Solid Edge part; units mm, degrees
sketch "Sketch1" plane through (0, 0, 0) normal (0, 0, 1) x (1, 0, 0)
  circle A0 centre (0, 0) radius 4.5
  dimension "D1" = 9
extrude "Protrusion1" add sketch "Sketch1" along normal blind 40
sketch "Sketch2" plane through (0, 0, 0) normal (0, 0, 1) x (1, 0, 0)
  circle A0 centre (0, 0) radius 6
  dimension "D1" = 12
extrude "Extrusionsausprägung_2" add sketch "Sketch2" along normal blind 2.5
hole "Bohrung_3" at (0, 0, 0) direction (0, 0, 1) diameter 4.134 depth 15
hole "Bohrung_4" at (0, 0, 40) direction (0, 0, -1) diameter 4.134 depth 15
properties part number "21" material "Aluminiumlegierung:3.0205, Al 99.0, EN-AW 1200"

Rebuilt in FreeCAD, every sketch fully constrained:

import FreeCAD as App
import Part
import Sketcher

doc = App.newDocument("Part")
params = doc.addObject("Spreadsheet::Sheet", "Params")
for row, (alias, value) in enumerate([
    ("sketch1_diameter", "9 mm"),
    ("pad1_length", "40 mm"),
    ("sketch2_diameter", "12 mm"),
    ("pad2_length", "2.5 mm"),
    ("hole_diameter", "4.134 mm"),
    ("hole_depth", "15 mm"),
    ("hole2_diameter", "4.134 mm"),
    ("hole2_depth", "15 mm"),
], start=1):
    params.set(f"A{row}", alias)
    params.set(f"B{row}", "=" + value)
    params.setAlias(f"B{row}", alias)

body = doc.addObject("PartDesign::Body", "Body")

sketch1 = body.newObject("Sketcher::SketchObject", "Sketch")
sketch1.AttachmentSupport = (doc.getObject("XY_Plane"), [""])
sketch1.MapMode = "FlatFace"
sketch1.addGeometry(Part.Circle(App.Vector(0, 0, 0), App.Vector(0, 0, 1), 4.5), False)
sketch1.addConstraint([
    Sketcher.Constraint("Coincident", 0, 3, -1, 1),
    Sketcher.Constraint("Diameter", 0, 9.0),
])
sketch1.setExpression("Constraints[1]", "Params.sketch1_diameter")
pad1 = body.newObject("PartDesign::Pad", "Pad")
pad1.Profile = sketch1
pad1.setExpression("Length", "Params.pad1_length")

sketch2 = body.newObject("Sketcher::SketchObject", "Sketch001")
sketch2.AttachmentSupport = (doc.getObject("XY_Plane"), [""])
sketch2.MapMode = "FlatFace"
sketch2.addGeometry(Part.Circle(App.Vector(0, 0, 0), App.Vector(0, 0, 1), 6), False)
sketch2.addConstraint([
    Sketcher.Constraint("Coincident", 0, 3, -1, 1),
    Sketcher.Constraint("Diameter", 0, 12.0),
])
sketch2.setExpression("Constraints[1]", "Params.sketch2_diameter")
pad2 = body.newObject("PartDesign::Pad", "Pad001")
pad2.Profile = sketch2
pad2.setExpression("Length", "Params.pad2_length")

sketch3 = body.newObject("Sketcher::SketchObject", "Sketch002")
sketch3.AttachmentSupport = (doc.getObject("XY_Plane"), [""])
sketch3.MapMode = "FlatFace"
sketch3.addGeometry(Part.Circle(App.Vector(0, 0, 0), App.Vector(0, 0, 1), 2.1), False)
sketch3.addConstraint([
    Sketcher.Constraint("Coincident", 0, 3, -1, 1),
    Sketcher.Constraint("Diameter", 0, 4.134),
])
doc.recompute()
hole = body.newObject("PartDesign::Hole", "Hole")
hole.Profile = sketch3
hole.ThreadType = "None"
hole.setExpression("Diameter", "Params.hole_diameter")
hole.DepthType = "Dimension"
hole.setExpression("Depth", "Params.hole_depth")
hole.DrillPoint = "Flat"
hole.Reversed = True

sketch4 = body.newObject("Sketcher::SketchObject", "Sketch003")
sketch4.AttachmentSupport = (doc.getObject("XY_Plane"), [""])
sketch4.MapMode = "FlatFace"
sketch4.AttachmentOffset = App.Placement(App.Vector(0, 0, 40), App.Rotation())
sketch4.addGeometry(Part.Circle(App.Vector(0, 0, 0), App.Vector(0, 0, 1), 2.1), False)
sketch4.addConstraint([
    Sketcher.Constraint("Coincident", 0, 3, -1, 1),
    Sketcher.Constraint("Diameter", 0, 4.134),
])
doc.recompute()
hole2 = body.newObject("PartDesign::Hole", "Hole001")
hole2.Profile = sketch4
hole2.ThreadType = "None"
hole2.setExpression("Diameter", "Params.hole2_diameter")
hole2.DepthType = "Dimension"
hole2.setExpression("Depth", "Params.hole2_depth")
hole2.DrillPoint = "Flat"

doc.recompute()
